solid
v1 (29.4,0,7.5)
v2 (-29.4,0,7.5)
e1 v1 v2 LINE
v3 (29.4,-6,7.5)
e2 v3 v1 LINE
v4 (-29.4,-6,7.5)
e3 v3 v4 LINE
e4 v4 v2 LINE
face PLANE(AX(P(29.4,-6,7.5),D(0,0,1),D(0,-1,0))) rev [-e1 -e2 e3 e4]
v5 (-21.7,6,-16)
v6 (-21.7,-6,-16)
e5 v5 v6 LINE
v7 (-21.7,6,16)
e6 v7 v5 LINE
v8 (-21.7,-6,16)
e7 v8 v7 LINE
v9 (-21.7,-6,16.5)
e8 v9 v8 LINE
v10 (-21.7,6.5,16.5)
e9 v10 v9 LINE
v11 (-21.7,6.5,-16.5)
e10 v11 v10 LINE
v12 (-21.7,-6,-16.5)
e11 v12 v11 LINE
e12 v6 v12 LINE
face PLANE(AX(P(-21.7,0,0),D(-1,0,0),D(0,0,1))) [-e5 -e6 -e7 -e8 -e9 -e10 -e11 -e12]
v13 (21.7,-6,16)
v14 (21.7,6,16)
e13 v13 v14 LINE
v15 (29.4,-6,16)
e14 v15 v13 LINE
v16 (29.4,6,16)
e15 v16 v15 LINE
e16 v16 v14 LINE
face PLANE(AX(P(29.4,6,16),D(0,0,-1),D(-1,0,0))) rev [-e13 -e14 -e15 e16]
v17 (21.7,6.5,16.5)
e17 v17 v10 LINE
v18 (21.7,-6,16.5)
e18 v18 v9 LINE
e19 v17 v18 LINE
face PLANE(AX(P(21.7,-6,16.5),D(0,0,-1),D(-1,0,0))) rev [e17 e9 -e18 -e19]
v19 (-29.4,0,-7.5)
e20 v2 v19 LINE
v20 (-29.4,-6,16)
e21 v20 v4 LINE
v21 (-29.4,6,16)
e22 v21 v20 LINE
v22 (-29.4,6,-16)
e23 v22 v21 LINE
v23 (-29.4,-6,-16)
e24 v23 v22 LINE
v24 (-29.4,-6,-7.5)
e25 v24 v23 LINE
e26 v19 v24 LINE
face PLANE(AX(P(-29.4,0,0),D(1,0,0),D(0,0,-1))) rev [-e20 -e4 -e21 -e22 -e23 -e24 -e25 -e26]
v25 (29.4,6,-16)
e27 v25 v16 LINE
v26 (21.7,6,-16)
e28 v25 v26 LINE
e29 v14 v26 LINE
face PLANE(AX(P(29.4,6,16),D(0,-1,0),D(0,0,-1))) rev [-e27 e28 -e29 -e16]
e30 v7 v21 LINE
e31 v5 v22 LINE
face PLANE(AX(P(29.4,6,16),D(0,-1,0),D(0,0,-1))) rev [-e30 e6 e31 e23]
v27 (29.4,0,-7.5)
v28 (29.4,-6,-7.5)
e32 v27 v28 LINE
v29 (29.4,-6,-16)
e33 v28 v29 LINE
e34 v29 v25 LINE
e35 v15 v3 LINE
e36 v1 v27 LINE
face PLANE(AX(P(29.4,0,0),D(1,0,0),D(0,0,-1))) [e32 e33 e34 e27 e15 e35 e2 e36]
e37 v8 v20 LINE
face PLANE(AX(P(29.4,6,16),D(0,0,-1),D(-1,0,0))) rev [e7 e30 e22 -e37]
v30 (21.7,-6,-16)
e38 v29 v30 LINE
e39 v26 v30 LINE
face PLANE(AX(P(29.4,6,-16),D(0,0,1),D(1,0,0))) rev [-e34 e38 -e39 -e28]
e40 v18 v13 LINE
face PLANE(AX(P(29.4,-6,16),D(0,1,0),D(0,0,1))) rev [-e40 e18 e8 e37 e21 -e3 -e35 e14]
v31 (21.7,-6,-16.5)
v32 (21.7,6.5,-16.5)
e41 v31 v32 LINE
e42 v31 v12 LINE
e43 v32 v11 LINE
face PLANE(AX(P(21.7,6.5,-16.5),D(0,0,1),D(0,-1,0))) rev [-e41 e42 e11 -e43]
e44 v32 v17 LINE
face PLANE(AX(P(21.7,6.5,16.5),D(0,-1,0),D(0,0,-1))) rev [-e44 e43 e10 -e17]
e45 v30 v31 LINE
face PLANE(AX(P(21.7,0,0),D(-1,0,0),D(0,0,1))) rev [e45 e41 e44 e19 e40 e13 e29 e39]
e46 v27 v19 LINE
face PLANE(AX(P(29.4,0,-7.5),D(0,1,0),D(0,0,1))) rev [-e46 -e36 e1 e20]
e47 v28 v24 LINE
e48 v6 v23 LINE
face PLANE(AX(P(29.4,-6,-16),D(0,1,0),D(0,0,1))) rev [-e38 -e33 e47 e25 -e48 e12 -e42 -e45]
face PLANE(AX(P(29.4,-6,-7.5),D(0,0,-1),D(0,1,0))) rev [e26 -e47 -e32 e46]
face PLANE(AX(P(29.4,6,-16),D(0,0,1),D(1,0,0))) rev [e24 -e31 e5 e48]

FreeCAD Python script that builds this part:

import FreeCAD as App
import Part
import Sketcher

V = App.Vector


def add_polygon(sketch, points):
    """Adds a closed chain of lines whose ends are joined by coincident constraints."""
    first, n = sketch.GeometryCount, len(points)
    for a, b in zip(points, points[1:] + points[:1]):
        sketch.addGeometry(Part.LineSegment(App.Vector(*a, 0), App.Vector(*b, 0)), False)
    for i in range(n):
        sketch.addConstraint(Sketcher.Constraint("Coincident", first + i, 2, first + (i + 1) % n, 1))

doc = App.newDocument("Part")
body = doc.addObject("PartDesign::Body", "Body")

sketch1 = body.newObject("Sketcher::SketchObject", "Sketch")
sketch1.AttachmentSupport = (doc.getObject("YZ_Plane"), [""])
sketch1.MapMode = "FlatFace"
add_polygon(sketch1, [(6, -16), (6, 16), (-6, 16), (-6, 7.5), (0, 7.5), (0, -7.5), (-6, -7.5), (-6, -16)])
sketch1.addConstraint(Sketcher.Constraint("Vertical", 0))
sketch1.addConstraint(Sketcher.Constraint("Horizontal", 1))
sketch1.addConstraint(Sketcher.Constraint("Vertical", 2))
sketch1.addConstraint(Sketcher.Constraint("Horizontal", 3))
sketch1.addConstraint(Sketcher.Constraint("Vertical", 4))
sketch1.addConstraint(Sketcher.Constraint("Horizontal", 5))
sketch1.addConstraint(Sketcher.Constraint("Vertical", 6))
sketch1.addConstraint(Sketcher.Constraint("Horizontal", 7))
sketch1.addConstraint(Sketcher.Constraint("Symmetric", 3, 2, 4, 2, -1, 1))
sketch1.addConstraint(Sketcher.Constraint("Symmetric", 0, 2, 6, 2, -1, 1))
sketch1.addConstraint(Sketcher.Constraint("Vertical", 2, 2, 5, 2))
sketch1.addConstraint(Sketcher.Constraint("DistanceX", 1, 2, 1, 1, 12.0))
sketch1.addConstraint(Sketcher.Constraint("DistanceY", 0, 1, 0, 2, 32.0))
sketch1.addConstraint(Sketcher.Constraint("DistanceY", 4, 2, 4, 1, 15.0))
pad1 = body.newObject("PartDesign::Pad", "Pad")
pad1.Profile = sketch1
pad1.Length = 58.8
pad1.Midplane = True

sketch2 = body.newObject("Sketcher::SketchObject", "Sketch001")
sketch2.AttachmentSupport = (doc.getObject("YZ_Plane"), [""])
sketch2.MapMode = "FlatFace"
add_polygon(sketch2, [(-6, 16.5), (-6, 16), (6, 16), (6, -16), (-6, -16), (-6, -16.5), (6.5, -16.5), (6.5, 16.5)])
sketch2.addConstraint(Sketcher.Constraint("Vertical", 0))
sketch2.addConstraint(Sketcher.Constraint("Horizontal", 1))
sketch2.addConstraint(Sketcher.Constraint("Vertical", 2))
sketch2.addConstraint(Sketcher.Constraint("Horizontal", 3))
sketch2.addConstraint(Sketcher.Constraint("Vertical", 4))
sketch2.addConstraint(Sketcher.Constraint("Horizontal", 5))
sketch2.addConstraint(Sketcher.Constraint("Vertical", 6))
sketch2.addConstraint(Sketcher.Constraint("Horizontal", 7))
sketch2.addConstraint(Sketcher.Constraint("Symmetric", 0, 2, 2, 2, -1, 1))
sketch2.addConstraint(Sketcher.Constraint("Symmetric", 4, 2, 7, 2, -1))
sketch2.addConstraint(Sketcher.Constraint("DistanceX", 1, 1, 1, 2, 12.0))
sketch2.addConstraint(Sketcher.Constraint("DistanceY", 2, 2, 2, 1, 32.0))
sketch2.addConstraint(Sketcher.Constraint("DistanceY", 6, 1, 6, 2, 33.0))
sketch2.addConstraint(Sketcher.Constraint("DistanceX", 5, 1, 5, 2, 12.5))
pad2 = body.newObject("PartDesign::Pad", "Pad001")
pad2.Profile = sketch2
pad2.Length = 43.4
pad2.Midplane = True

doc.recompute()
